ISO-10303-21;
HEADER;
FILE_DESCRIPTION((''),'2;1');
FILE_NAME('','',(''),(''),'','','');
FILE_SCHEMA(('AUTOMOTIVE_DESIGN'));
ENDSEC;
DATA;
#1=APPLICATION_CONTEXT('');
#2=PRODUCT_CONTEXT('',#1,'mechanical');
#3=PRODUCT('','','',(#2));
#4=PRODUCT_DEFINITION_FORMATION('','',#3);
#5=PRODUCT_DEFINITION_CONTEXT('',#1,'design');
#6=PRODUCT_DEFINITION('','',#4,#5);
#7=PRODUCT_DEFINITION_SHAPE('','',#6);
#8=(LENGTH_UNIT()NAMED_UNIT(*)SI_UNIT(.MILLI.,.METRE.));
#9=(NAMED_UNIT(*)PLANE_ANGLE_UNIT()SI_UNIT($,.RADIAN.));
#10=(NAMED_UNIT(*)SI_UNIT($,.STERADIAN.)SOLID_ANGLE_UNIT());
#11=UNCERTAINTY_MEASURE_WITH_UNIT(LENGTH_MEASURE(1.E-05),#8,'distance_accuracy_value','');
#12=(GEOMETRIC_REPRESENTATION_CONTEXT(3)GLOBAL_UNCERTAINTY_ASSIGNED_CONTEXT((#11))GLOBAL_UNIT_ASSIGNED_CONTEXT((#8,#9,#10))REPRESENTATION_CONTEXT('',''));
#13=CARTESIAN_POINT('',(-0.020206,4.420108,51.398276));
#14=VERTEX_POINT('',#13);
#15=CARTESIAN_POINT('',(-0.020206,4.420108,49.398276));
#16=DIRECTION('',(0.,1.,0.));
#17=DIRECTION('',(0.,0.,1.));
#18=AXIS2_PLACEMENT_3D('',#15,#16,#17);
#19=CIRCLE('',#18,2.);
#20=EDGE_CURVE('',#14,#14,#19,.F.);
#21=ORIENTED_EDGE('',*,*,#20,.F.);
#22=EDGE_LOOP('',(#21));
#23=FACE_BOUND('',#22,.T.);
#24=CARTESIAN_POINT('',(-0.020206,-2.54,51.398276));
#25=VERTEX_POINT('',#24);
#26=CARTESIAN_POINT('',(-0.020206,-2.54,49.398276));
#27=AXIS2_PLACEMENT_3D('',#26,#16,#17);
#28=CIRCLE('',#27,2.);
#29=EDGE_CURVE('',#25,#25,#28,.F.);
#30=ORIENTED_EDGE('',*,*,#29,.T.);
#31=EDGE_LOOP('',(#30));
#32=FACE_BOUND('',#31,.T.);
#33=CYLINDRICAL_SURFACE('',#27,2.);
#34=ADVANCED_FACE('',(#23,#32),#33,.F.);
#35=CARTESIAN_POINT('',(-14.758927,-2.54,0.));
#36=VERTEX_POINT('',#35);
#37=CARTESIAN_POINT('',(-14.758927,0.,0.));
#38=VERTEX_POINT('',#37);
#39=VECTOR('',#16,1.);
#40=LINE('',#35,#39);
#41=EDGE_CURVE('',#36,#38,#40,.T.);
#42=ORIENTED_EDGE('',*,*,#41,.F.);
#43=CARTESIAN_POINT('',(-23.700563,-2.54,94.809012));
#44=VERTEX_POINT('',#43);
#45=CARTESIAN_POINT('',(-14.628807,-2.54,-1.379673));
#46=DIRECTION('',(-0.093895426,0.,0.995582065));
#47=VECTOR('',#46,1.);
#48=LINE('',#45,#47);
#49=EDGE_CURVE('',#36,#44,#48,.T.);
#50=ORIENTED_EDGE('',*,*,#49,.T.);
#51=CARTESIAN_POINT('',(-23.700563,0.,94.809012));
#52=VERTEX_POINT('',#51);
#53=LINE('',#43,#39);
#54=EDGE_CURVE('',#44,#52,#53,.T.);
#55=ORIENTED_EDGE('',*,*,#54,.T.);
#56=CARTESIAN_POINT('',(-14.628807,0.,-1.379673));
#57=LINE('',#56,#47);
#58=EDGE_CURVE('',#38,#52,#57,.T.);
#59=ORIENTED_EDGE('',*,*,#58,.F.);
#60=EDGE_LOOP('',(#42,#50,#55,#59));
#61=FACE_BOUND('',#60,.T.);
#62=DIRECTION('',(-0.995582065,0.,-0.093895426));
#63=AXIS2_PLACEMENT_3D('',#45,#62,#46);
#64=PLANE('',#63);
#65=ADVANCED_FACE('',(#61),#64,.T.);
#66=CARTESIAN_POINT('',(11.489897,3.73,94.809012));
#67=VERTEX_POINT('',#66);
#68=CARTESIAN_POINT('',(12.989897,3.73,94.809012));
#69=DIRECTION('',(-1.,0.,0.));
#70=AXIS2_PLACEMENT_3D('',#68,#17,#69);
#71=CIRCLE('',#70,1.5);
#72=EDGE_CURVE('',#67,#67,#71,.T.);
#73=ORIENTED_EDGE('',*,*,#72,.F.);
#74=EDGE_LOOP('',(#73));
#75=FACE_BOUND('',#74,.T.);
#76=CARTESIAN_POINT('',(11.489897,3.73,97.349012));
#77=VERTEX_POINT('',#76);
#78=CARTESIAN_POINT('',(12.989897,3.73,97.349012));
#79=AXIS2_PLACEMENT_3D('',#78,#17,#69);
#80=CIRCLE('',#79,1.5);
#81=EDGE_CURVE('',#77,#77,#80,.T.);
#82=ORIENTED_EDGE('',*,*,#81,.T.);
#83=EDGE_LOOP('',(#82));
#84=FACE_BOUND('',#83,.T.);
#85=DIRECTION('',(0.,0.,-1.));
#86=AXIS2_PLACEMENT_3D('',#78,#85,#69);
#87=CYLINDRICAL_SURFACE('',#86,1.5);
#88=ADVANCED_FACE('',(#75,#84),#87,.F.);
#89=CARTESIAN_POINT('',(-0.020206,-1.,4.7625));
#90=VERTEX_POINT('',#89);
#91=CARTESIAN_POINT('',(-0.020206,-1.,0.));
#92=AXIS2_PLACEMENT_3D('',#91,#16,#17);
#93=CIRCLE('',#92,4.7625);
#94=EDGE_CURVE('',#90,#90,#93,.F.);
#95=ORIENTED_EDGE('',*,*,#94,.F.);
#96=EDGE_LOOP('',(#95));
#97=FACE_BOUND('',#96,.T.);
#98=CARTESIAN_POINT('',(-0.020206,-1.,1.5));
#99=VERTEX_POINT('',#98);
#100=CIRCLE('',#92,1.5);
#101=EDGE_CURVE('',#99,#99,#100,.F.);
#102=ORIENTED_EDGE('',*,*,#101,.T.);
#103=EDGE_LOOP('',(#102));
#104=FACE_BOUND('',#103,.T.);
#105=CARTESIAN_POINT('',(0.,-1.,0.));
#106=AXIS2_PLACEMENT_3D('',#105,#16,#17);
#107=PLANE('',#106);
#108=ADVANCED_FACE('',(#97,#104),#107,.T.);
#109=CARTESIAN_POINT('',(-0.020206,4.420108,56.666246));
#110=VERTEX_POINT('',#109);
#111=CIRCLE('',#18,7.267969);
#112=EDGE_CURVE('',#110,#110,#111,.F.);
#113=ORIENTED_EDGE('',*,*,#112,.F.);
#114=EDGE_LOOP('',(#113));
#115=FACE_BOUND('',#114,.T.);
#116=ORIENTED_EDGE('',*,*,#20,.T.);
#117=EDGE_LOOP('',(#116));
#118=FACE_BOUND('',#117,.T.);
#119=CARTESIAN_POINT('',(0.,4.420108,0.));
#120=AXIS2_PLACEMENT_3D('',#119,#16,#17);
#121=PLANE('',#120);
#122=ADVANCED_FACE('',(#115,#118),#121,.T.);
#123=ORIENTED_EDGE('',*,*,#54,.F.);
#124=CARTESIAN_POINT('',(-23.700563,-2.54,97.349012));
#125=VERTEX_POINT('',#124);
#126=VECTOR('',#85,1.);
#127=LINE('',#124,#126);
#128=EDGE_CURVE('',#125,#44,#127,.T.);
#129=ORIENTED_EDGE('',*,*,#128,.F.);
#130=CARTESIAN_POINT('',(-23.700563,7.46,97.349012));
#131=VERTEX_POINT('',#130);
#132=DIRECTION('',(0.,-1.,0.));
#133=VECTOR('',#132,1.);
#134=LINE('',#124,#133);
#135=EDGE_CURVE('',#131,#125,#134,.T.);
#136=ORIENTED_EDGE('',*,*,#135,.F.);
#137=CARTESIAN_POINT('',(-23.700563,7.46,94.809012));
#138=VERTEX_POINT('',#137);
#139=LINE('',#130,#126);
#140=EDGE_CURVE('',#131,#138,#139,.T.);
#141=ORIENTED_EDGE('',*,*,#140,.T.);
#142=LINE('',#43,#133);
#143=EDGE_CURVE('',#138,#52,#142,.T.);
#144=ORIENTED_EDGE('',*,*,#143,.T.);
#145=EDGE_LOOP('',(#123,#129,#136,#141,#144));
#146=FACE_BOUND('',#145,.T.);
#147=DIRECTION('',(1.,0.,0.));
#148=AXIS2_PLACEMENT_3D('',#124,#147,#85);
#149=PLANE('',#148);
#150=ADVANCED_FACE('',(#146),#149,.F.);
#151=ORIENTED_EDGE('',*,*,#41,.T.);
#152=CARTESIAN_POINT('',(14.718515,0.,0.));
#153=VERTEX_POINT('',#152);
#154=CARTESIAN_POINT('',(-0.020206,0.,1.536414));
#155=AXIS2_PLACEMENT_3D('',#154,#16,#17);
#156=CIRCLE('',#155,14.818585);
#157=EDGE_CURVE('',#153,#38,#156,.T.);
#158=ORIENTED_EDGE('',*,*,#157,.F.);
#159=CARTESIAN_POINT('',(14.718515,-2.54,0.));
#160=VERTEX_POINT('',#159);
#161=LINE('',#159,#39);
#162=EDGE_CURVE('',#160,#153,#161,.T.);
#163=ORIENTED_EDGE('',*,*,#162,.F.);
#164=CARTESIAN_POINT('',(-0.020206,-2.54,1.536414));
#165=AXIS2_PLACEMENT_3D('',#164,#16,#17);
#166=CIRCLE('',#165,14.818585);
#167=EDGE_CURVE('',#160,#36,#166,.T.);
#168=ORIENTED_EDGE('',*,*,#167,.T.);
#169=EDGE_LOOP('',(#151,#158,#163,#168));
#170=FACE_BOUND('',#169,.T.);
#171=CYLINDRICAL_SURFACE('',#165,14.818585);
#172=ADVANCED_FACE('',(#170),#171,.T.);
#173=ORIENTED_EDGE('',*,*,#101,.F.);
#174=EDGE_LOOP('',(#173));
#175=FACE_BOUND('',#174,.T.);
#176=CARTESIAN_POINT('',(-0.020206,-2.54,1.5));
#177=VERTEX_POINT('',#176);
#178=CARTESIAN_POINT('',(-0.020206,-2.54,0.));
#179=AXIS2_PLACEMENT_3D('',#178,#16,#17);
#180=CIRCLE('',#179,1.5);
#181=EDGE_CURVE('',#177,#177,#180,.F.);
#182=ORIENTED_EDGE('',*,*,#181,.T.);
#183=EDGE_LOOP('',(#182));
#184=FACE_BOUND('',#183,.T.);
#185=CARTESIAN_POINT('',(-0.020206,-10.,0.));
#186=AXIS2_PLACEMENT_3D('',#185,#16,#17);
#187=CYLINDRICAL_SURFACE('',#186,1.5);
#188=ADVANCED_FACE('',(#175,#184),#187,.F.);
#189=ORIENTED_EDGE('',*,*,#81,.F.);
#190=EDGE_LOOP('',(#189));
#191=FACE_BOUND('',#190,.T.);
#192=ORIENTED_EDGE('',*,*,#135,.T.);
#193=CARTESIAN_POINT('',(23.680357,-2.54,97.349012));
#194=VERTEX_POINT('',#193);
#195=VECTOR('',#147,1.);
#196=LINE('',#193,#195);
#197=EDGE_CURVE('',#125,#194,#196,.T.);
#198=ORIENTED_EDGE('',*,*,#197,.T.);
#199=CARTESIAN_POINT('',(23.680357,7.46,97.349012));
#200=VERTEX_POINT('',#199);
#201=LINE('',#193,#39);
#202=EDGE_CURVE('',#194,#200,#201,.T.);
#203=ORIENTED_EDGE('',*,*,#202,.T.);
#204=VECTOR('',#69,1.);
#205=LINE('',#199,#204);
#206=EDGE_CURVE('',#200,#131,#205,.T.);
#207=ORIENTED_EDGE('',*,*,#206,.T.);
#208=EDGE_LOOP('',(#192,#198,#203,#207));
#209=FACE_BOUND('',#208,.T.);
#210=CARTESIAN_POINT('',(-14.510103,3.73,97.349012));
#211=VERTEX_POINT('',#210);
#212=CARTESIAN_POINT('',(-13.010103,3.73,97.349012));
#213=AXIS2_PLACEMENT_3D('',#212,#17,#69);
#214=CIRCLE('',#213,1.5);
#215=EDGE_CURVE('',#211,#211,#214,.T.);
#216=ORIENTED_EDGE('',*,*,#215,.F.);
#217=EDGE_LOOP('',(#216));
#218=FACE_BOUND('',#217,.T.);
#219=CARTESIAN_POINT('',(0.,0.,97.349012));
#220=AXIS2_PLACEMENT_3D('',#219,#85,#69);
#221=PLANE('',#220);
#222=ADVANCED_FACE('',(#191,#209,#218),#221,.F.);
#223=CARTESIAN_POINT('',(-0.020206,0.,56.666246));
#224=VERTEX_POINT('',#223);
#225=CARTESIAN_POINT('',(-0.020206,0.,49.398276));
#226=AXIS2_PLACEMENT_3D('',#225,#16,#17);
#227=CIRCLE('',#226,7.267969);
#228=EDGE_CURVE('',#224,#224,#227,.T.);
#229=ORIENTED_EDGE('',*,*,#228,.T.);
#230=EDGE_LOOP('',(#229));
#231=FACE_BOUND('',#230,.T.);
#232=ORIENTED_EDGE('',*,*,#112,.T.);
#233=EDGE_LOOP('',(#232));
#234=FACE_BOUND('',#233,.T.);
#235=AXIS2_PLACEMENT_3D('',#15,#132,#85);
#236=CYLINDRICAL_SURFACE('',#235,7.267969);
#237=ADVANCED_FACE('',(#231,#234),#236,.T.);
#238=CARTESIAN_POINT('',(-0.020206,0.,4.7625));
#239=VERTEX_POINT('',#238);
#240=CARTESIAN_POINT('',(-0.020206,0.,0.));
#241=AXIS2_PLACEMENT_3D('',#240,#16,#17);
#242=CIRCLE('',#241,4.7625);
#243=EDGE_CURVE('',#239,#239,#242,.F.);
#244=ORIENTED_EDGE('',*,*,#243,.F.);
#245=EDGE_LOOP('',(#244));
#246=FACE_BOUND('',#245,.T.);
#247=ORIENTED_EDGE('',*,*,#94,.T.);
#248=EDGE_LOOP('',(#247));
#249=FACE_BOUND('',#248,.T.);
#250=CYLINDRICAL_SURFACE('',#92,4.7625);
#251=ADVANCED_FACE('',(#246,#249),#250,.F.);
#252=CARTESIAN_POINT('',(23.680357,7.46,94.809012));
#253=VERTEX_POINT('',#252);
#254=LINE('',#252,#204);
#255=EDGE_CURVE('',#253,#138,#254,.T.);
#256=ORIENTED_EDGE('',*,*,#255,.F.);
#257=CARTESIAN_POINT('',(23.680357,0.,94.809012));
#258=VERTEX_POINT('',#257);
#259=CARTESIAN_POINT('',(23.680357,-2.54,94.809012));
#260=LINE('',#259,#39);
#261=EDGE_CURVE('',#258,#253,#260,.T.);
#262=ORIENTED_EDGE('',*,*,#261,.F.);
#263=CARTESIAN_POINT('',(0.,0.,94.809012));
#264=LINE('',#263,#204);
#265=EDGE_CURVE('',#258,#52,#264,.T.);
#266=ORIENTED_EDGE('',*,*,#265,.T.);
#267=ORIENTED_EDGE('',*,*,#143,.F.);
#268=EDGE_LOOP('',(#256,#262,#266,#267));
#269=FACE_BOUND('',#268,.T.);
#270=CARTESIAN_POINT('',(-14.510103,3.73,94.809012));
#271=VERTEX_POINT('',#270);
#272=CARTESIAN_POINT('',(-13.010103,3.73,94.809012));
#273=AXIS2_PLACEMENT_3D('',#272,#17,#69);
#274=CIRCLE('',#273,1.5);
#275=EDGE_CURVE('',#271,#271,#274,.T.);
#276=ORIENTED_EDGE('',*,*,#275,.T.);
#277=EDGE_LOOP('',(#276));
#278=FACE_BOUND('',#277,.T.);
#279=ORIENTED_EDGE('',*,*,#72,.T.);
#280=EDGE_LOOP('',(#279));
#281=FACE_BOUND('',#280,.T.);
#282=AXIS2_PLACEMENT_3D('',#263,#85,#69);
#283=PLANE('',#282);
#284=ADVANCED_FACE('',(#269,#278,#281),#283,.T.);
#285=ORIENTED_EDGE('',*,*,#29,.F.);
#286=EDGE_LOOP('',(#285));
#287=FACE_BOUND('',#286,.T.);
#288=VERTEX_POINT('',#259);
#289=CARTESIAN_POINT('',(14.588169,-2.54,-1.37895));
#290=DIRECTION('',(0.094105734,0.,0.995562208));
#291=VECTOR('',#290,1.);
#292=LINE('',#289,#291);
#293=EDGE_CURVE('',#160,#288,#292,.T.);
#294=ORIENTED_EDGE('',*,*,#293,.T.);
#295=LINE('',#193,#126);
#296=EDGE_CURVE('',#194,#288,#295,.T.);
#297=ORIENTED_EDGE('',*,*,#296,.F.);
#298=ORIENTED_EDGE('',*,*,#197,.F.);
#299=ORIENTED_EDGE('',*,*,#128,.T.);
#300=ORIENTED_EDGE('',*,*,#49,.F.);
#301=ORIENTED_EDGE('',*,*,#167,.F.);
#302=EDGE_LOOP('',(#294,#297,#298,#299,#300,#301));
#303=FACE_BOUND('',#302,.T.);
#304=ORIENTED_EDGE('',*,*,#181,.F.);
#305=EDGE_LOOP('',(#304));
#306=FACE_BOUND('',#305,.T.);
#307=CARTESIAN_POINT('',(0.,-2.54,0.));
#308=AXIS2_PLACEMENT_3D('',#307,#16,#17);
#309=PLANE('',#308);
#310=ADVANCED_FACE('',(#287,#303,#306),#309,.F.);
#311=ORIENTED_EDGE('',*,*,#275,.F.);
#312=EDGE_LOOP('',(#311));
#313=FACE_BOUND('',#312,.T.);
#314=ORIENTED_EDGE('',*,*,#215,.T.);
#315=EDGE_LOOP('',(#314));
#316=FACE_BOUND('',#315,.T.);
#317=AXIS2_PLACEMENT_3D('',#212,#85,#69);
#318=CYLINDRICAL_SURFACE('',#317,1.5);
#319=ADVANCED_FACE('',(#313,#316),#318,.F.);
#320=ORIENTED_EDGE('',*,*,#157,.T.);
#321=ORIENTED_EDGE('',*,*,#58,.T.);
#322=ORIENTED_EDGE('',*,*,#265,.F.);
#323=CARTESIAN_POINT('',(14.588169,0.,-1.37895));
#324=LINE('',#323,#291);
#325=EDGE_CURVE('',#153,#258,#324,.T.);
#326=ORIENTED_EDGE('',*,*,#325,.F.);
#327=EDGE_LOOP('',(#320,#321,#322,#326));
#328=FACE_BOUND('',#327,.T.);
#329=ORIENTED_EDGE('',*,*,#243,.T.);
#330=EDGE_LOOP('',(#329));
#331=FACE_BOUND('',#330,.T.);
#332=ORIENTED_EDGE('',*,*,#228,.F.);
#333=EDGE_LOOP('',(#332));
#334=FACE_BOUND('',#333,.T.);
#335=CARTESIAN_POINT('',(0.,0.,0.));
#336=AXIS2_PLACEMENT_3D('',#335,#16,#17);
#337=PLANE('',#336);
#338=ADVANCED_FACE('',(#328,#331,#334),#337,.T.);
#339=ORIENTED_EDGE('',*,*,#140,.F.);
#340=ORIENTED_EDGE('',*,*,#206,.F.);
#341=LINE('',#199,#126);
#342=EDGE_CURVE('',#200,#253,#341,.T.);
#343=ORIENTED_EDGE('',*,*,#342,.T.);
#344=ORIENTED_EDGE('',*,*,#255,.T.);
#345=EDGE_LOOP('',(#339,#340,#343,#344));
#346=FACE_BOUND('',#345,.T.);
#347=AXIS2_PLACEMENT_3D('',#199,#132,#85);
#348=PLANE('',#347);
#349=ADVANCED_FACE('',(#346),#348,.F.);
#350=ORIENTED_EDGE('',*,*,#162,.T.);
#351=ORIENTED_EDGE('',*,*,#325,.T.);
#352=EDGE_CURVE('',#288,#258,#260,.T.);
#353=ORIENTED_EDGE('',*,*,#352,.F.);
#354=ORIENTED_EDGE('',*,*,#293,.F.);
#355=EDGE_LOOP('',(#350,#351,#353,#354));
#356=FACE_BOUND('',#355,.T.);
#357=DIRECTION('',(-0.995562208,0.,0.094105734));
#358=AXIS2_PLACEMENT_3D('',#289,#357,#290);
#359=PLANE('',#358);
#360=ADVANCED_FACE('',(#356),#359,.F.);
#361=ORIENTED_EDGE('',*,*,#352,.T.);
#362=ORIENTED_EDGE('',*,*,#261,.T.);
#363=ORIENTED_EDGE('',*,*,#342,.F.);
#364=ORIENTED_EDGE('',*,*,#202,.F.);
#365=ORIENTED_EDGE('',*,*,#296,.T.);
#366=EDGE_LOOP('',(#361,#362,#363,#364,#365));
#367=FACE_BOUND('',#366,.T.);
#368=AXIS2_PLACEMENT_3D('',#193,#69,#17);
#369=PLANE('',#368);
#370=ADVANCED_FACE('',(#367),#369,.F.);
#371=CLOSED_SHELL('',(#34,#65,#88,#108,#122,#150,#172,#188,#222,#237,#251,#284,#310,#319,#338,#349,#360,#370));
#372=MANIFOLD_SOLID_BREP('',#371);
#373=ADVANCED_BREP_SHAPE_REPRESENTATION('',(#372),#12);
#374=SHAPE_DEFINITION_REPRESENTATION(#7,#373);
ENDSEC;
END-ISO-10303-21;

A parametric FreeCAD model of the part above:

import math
import FreeCAD as App
import Part
import Sketcher
from FreeCAD import Vector

doc = App.newDocument("Part")
body = doc.addObject("PartDesign::Body", "Body")

sketch1 = body.newObject("Sketcher::SketchObject", "Sketch")
sketch1.AttachmentSupport = (doc.getObject("XZ_Plane"), [""])
sketch1.MapMode = "FlatFace"
sketch1.addGeometry([
    Part.LineSegment(Vector(14.7, 0, 0), Vector(23.7, 94.8, 0)),
    Part.LineSegment(Vector(23.7, 94.8, 0), Vector(-23.7, 94.8, 0)),
    Part.LineSegment(Vector(-23.7, 94.8, 0), Vector(-14.8, 0, 0)),
    Part.ArcOfCircle(Part.Circle(Vector(0, 1.5, 0), Vector(0, 0, 1), 14.8), math.radians(-174), math.radians(-6)),
    Part.Circle(Vector(0, 49.4, 0), Vector(0, 0, 1), 2),
], False)
sketch1.addConstraint([
    Sketcher.Constraint("Coincident", 0, 2, 1, 1),
    Sketcher.Constraint("Coincident", 1, 2, 2, 1),
    Sketcher.Constraint("Coincident", 2, 2, 3, 1),
    Sketcher.Constraint("Coincident", 3, 2, 0, 1),
    Sketcher.Constraint("Horizontal", 1),
    Sketcher.Constraint("PointOnObject", 2, 2, -1),
    Sketcher.Constraint("PointOnObject", 3, 2, -1),
    Sketcher.Constraint("Vertical", 3, 3, 4, 3),
    Sketcher.Constraint("Diameter", 4, 4.0),
    Sketcher.Constraint("Radius", 3, 14.818585),
    Sketcher.Constraint("DistanceX", 1, 2, 1, 1, 47.380921),
    Sketcher.Constraint("DistanceY", 3, 3, 0, 2, 93.272598),
    Sketcher.Constraint("Distance", 0, 95.23163),
    Sketcher.Constraint("Distance", 2, 95.22973),
    Sketcher.Constraint("DistanceX", 3, 3, -1, 1, 0.020206),
    Sketcher.Constraint("DistanceY", -1, 1, 4, 3, 49.398276),
])
pad1 = body.newObject("PartDesign::Pad", "Pad")
pad1.Profile = sketch1
pad1.Length = 2.54

sketch2 = body.newObject("Sketcher::SketchObject", "Sketch001")
sketch2.AttachmentSupport = (doc.getObject("XY_Plane"), [""])
sketch2.MapMode = "FlatFace"
sketch2.AttachmentOffset = App.Placement(Vector(0, 0, 94.809012), App.Rotation())
sketch2.addGeometry([
    Part.LineSegment(Vector(-23.7, 7.5, 0), Vector(-23.7, -2.5, 0)),
    Part.LineSegment(Vector(-23.7, -2.5, 0), Vector(23.7, -2.5, 0)),
    Part.LineSegment(Vector(23.7, -2.5, 0), Vector(23.7, 7.5, 0)),
    Part.LineSegment(Vector(23.7, 7.5, 0), Vector(-23.7, 7.5, 0)),
    Part.Circle(Vector(-13, 3.7, 0), Vector(0, 0, 1), 1.5),
    Part.Circle(Vector(13, 3.7, 0), Vector(0, 0, 1), 1.5),
], False)
sketch2.addConstraint([
    Sketcher.Constraint("Coincident", 0, 2, 1, 1),
    Sketcher.Constraint("Coincident", 1, 2, 2, 1),
    Sketcher.Constraint("Coincident", 2, 2, 3, 1),
    Sketcher.Constraint("Coincident", 3, 2, 0, 1),
    Sketcher.Constraint("Vertical", 0),
    Sketcher.Constraint("Horizontal", 1),
    Sketcher.Constraint("Vertical", 2),
    Sketcher.Constraint("Horizontal", 3),
    Sketcher.Constraint("Equal", 4, 5),
    Sketcher.Constraint("Horizontal", 4, 3, 5, 3),
    Sketcher.Constraint("Diameter", 4, 3.0),
    Sketcher.Constraint("DistanceY", 0, 2, 0, 1, 10.0),
    Sketcher.Constraint("DistanceX", 4, 3, 5, 3, 26.0),
    Sketcher.Constraint("DistanceY", -1, 1, 4, 3, 3.73),
    Sketcher.Constraint("DistanceY", 0, 2, -1, 1, 2.54),
    Sketcher.Constraint("DistanceX", 1, 1, 1, 2, 47.380921),
    Sketcher.Constraint("DistanceX", 0, 2, 4, 3, 10.69046),
    Sketcher.Constraint("DistanceX", 4, 3, -1, 1, 13.010103),
])
pad2 = body.newObject("PartDesign::Pad", "Pad001")
pad2.Profile = sketch2
pad2.Length = 2.54

sketch3 = body.newObject("Sketcher::SketchObject", "Sketch002")
sketch3.AttachmentSupport = (doc.getObject("XZ_Plane"), [""])
sketch3.MapMode = "FlatFace"
sketch3.addGeometry(Part.Circle(Vector(0, 0, 0), Vector(0, 0, 1), 1.5), False)
sketch3.addConstraint([
    Sketcher.Constraint("PointOnObject", 0, 3, -1),
    Sketcher.Constraint("Diameter", 0, 3.0),
    Sketcher.Constraint("DistanceX", 0, 3, -1, 1, 0.020206),
])
pocket1 = body.newObject("PartDesign::Pocket", "Pocket")
pocket1.Profile = sketch3
pocket1.Length = 10
pocket1.Reversed = True

sketch4 = body.newObject("Sketcher::SketchObject", "Sketch003")
sketch4.AttachmentSupport = (doc.getObject("XZ_Plane"), [""])
sketch4.MapMode = "FlatFace"
sketch4.addGeometry([
    Part.Circle(Vector(0, 0, 0), Vector(0, 0, 1), 4.8),
    Part.Circle(Vector(0, 0, 0), Vector(0, 0, 1), 1.5),
], False)
sketch4.addConstraint([
    Sketcher.Constraint("Coincident", 1, 3, 0, 3),
    Sketcher.Constraint("PointOnObject", 0, 3, -1),
    Sketcher.Constraint("Diameter", 1, 3.0),
    Sketcher.Constraint("Diameter", 0, 9.525),
    Sketcher.Constraint("DistanceX", 0, 3, -1, 1, 0.020206),
])
pocket2 = body.newObject("PartDesign::Pocket", "Pocket001")
pocket2.Profile = sketch4
pocket2.Length = 1
pocket2.Reversed = True

sketch5 = body.newObject("Sketcher::SketchObject", "Sketch004")
sketch5.AttachmentSupport = (doc.getObject("XZ_Plane"), [""])
sketch5.MapMode = "FlatFace"
sketch5.addGeometry([
    Part.Circle(Vector(0, 49.4, 0), Vector(0, 0, 1), 7.3),
    Part.Circle(Vector(0, 49.4, 0), Vector(0, 0, 1), 2),
], False)
sketch5.addConstraint([
    Sketcher.Constraint("Coincident", 1, 3, 0, 3),
    Sketcher.Constraint("Diameter", 1, 4.0),
    Sketcher.Constraint("Diameter", 0, 14.535939),
    Sketcher.Constraint("DistanceX", 0, 3, -1, 1, 0.020206),
    Sketcher.Constraint("DistanceY", -1, 1, 0, 3, 49.398276),
])
pad3 = body.newObject("PartDesign::Pad", "Pad002")
pad3.Profile = sketch5
pad3.Length = 4.420108
pad3.Reversed = True

doc.recompute()
